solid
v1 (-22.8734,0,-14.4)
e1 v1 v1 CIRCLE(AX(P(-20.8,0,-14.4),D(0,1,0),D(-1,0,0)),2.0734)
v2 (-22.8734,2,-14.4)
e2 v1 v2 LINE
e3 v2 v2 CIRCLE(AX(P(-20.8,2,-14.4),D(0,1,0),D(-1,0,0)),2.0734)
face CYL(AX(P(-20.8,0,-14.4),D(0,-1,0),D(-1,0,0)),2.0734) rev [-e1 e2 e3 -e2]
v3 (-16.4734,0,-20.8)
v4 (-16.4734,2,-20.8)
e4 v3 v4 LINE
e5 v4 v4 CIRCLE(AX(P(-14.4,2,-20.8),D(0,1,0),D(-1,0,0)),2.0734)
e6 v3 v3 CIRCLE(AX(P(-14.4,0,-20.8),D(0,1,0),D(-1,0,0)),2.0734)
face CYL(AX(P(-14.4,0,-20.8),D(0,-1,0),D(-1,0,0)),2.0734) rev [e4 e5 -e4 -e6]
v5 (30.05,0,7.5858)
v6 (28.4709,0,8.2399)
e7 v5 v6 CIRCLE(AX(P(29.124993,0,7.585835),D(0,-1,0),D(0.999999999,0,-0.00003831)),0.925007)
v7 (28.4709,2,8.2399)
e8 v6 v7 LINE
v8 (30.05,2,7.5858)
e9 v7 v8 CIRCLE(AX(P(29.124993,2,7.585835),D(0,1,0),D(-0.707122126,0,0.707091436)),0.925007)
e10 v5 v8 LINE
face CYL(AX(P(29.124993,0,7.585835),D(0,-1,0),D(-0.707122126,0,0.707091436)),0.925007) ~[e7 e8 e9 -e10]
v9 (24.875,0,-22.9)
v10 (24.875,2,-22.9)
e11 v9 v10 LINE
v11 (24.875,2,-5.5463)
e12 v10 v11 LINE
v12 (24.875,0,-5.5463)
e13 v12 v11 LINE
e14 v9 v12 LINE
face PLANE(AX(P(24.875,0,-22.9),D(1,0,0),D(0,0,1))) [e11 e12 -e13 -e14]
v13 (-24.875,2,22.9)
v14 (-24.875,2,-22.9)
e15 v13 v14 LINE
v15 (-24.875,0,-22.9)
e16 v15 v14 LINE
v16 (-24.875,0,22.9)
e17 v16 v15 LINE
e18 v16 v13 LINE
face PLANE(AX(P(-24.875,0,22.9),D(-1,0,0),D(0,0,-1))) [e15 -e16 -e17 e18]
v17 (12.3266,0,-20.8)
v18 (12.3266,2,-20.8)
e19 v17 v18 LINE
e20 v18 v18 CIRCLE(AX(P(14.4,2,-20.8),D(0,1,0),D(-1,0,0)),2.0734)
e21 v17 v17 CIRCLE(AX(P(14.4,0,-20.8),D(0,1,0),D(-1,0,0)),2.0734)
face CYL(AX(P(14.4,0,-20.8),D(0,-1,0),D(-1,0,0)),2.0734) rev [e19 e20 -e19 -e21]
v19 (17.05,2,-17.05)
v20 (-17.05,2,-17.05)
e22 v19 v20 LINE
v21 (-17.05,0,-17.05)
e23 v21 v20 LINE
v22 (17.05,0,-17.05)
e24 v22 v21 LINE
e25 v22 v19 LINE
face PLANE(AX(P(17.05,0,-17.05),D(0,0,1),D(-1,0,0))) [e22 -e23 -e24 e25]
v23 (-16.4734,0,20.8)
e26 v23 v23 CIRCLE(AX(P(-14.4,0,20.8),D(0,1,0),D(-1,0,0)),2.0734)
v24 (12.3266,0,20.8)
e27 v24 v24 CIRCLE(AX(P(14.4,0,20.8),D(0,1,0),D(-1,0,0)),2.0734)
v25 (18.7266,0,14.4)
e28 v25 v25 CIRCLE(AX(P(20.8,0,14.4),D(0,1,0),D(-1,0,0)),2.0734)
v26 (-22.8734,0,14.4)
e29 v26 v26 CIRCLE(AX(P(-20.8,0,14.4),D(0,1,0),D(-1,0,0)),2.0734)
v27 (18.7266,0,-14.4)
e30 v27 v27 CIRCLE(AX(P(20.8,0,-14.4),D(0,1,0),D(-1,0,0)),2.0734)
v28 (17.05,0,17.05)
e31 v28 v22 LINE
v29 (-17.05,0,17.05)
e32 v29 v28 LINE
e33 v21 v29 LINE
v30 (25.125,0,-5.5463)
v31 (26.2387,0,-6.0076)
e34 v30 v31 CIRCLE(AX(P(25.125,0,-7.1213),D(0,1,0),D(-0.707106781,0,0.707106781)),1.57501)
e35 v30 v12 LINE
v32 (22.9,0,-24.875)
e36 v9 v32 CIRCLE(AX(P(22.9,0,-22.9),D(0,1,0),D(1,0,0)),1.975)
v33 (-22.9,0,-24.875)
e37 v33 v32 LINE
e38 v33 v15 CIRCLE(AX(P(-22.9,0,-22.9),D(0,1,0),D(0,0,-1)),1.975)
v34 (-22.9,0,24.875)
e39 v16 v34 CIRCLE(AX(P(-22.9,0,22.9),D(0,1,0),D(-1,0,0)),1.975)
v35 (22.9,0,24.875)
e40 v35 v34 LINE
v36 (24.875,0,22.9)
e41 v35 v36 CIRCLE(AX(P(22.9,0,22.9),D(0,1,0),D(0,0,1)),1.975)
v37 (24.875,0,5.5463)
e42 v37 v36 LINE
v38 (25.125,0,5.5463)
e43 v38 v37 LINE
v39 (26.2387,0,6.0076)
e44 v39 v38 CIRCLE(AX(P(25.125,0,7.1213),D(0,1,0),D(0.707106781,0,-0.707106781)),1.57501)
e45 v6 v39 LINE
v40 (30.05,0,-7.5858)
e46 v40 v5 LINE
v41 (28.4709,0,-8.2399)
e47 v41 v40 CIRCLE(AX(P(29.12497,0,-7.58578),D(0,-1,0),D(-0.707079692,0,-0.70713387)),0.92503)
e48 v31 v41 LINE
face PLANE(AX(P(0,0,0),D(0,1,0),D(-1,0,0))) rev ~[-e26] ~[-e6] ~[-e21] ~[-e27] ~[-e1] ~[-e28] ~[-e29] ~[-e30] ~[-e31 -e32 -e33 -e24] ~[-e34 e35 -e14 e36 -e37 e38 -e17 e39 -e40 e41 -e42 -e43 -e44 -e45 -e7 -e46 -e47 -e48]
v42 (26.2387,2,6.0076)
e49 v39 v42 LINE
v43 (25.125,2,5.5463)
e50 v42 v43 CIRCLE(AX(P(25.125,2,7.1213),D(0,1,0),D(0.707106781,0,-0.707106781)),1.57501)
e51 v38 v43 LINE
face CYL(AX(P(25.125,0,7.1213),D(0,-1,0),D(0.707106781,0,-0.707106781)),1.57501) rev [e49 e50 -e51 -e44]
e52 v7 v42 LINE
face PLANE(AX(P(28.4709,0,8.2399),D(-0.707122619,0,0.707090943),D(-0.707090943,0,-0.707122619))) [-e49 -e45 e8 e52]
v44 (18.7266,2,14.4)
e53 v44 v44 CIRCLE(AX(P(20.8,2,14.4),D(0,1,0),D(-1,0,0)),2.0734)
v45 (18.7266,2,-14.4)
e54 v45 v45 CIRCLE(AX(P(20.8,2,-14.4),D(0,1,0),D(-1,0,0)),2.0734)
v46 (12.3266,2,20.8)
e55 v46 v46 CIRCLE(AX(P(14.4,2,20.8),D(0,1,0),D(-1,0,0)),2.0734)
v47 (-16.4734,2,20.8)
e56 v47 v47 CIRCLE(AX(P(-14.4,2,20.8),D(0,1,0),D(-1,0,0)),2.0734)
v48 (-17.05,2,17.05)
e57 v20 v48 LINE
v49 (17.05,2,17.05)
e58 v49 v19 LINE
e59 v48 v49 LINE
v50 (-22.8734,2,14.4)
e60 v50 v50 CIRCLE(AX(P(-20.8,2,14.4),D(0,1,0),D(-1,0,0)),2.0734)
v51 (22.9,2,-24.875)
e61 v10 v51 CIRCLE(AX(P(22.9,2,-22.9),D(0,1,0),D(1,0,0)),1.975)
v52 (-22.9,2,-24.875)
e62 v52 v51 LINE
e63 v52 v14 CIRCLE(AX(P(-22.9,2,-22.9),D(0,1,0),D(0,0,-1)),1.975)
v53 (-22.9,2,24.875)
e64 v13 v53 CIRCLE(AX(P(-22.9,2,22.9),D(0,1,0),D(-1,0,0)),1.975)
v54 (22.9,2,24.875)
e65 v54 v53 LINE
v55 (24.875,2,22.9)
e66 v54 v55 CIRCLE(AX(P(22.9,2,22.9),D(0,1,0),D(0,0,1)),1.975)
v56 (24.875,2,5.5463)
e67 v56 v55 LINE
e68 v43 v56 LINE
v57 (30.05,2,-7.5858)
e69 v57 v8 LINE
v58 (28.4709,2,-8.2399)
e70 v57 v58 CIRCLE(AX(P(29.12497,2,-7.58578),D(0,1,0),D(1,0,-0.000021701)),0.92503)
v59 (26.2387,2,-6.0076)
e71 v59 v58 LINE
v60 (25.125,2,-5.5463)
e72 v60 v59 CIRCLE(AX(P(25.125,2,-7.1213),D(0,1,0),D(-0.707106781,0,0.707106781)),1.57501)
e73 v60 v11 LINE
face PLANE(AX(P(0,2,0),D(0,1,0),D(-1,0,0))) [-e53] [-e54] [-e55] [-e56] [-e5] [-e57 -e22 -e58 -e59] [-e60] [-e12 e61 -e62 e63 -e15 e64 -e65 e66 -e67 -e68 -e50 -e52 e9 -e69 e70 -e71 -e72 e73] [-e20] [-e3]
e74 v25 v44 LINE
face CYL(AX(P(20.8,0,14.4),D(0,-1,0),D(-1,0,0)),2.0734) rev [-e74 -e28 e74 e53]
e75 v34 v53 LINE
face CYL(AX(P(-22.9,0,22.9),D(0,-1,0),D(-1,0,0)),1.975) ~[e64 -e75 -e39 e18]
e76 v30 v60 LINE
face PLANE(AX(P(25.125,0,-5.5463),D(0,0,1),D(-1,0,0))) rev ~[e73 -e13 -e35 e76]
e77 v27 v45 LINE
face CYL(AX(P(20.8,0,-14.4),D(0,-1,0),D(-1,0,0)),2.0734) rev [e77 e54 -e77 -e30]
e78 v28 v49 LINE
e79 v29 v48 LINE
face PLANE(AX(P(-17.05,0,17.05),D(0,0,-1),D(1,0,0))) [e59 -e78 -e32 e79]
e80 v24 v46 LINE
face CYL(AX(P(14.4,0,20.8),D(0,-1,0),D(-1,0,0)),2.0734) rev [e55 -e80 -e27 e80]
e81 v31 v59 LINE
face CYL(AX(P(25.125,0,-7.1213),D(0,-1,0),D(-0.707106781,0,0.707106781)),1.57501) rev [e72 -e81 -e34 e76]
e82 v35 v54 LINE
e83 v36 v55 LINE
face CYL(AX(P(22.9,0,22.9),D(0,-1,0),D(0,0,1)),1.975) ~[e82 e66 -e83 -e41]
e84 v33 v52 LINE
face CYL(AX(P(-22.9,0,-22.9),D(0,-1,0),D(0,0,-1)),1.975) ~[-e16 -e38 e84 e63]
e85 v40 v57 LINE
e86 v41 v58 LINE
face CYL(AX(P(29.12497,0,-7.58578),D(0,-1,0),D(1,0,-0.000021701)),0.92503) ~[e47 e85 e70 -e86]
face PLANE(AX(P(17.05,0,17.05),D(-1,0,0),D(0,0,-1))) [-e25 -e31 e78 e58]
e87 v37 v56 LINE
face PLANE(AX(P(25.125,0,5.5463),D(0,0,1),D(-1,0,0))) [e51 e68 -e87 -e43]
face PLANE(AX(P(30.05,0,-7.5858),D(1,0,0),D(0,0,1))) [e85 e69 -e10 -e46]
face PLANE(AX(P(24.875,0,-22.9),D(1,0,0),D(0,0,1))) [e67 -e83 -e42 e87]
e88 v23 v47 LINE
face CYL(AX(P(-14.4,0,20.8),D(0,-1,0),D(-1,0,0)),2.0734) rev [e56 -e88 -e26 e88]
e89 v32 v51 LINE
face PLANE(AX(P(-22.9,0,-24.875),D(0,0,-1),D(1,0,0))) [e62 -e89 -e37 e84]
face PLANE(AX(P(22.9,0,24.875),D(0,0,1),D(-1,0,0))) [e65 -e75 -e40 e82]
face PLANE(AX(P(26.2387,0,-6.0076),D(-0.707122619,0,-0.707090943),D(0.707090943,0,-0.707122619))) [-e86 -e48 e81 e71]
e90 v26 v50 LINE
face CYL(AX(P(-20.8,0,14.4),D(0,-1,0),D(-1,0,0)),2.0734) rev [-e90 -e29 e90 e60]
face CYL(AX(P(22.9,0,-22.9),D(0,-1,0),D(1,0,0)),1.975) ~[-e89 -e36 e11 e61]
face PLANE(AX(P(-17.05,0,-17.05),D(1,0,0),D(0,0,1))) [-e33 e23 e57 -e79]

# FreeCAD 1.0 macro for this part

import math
import FreeCAD as App
import Part
import Sketcher

V = App.Vector
Q = App.Units.Quantity


def add_polygon(sketch, points):
    """Adds a closed chain of lines whose ends are joined by coincident constraints."""
    first, n = sketch.GeometryCount, len(points)
    for a, b in zip(points, points[1:] + points[:1]):
        sketch.addGeometry(Part.LineSegment(App.Vector(*a, 0), App.Vector(*b, 0)), False)
    for i in range(n):
        sketch.addConstraint(Sketcher.Constraint("Coincident", first + i, 2, first + (i + 1) % n, 1))

doc = App.newDocument("Part")
params = doc.addObject("Spreadsheet::Sheet", "Params")
for row, (alias, value) in enumerate([
    ("sketch1_width", "45.8 mm"),
    ("sketch1_width2", "34.1 mm"),
    ("pad1_length", "2 mm"),
    ("sketch2_width", "0.25 mm"),
    ("pad2_length", "2 mm"),
], start=1):
    params.set(f"A{row}", alias)
    params.set(f"B{row}", "=" + value)
    params.setAlias(f"B{row}", alias)

body = doc.addObject("PartDesign::Body", "Body")

# Sketch on XZ plane
sketch1 = body.newObject("Sketcher::SketchObject", "Sketch")
sketch1.AttachmentSupport = (doc.getObject("XZ_Plane"), [""])
sketch1.MapMode = "FlatFace"
sketch1.addGeometry(Part.LineSegment(V(-22.9, 24.9, 0), V(22.9, 24.9, 0)), False)  # 0
sketch1.addGeometry(Part.ArcOfCircle(Part.Circle(V(22.9, 22.9, 0), V(0, 0, 1), 2), math.radians(0), math.radians(90)), False)  # 1
sketch1.addGeometry(Part.LineSegment(V(24.9, 22.9, 0), V(24.9, -22.9, 0)), False)  # 2
sketch1.addGeometry(Part.ArcOfCircle(Part.Circle(V(22.9, -22.9, 0), V(0, 0, 1), 2), math.radians(-90), math.radians(0)), False)  # 3
sketch1.addGeometry(Part.LineSegment(V(22.9, -24.9, 0), V(-22.9, -24.9, 0)), False)  # 4
sketch1.addGeometry(Part.ArcOfCircle(Part.Circle(V(-22.9, -22.9, 0), V(0, 0, 1), 2), math.radians(180), math.radians(270)), False)  # 5
sketch1.addGeometry(Part.LineSegment(V(-24.9, -22.9, 0), V(-24.9, 22.9, 0)), False)  # 6
sketch1.addGeometry(Part.ArcOfCircle(Part.Circle(V(-22.9, 22.9, 0), V(0, 0, 1), 2), math.radians(90), math.radians(180)), False)  # 7
sketch1.addGeometry(Part.Circle(V(14.4, -20.8, 0), V(0, 0, 1), 2.1), False)  # 8
sketch1.addGeometry(Part.Circle(V(20.8, -14.4, 0), V(0, 0, 1), 2.1), False)  # 9
add_polygon(sketch1, [(17.1, -17.1), (17.1, 17.1), (-17.1, 17.1), (-17.1, -17.1)])  # lines 10-13
sketch1.addGeometry(Part.Circle(V(-14.4, -20.8, 0), V(0, 0, 1), 2.1), False)  # 14
sketch1.addGeometry(Part.Circle(V(-20.8, -14.4, 0), V(0, 0, 1), 2.1), False)  # 15
sketch1.addGeometry(Part.Circle(V(20.8, 14.4, 0), V(0, 0, 1), 2.1), False)  # 16
sketch1.addGeometry(Part.Circle(V(14.4, 20.8, 0), V(0, 0, 1), 2.1), False)  # 17
sketch1.addGeometry(Part.Circle(V(-20.8, 14.4, 0), V(0, 0, 1), 2.1), False)  # 18
sketch1.addGeometry(Part.Circle(V(-14.4, 20.8, 0), V(0, 0, 1), 2.1), False)  # 19
sketch1.addConstraint([
    Sketcher.Constraint("Tangent", 0, 2, 1, 2),
    Sketcher.Constraint("Tangent", 1, 1, 2, 1),
    Sketcher.Constraint("Tangent", 2, 2, 3, 2),
    Sketcher.Constraint("Tangent", 3, 1, 4, 1),
    Sketcher.Constraint("Tangent", 4, 2, 5, 2),
    Sketcher.Constraint("Tangent", 5, 1, 6, 1),
    Sketcher.Constraint("Tangent", 6, 2, 7, 2),
    Sketcher.Constraint("Tangent", 7, 1, 0, 1),
    Sketcher.Constraint("Horizontal", 0),
    Sketcher.Constraint("Vertical", 2),
    Sketcher.Constraint("Horizontal", 4),
    Sketcher.Constraint("Vertical", 6),
    Sketcher.Constraint("Vertical", 10),
    Sketcher.Constraint("Horizontal", 11),
    Sketcher.Constraint("Vertical", 12),
    Sketcher.Constraint("Horizontal", 13),
    Sketcher.Constraint("Equal", 1, 3),
    Sketcher.Constraint("Equal", 3, 5),
    Sketcher.Constraint("Equal", 5, 7),
    Sketcher.Constraint("Equal", 8, 9),
    Sketcher.Constraint("Equal", 9, 14),
    Sketcher.Constraint("Equal", 14, 15),
    Sketcher.Constraint("Equal", 15, 16),
    Sketcher.Constraint("Equal", 16, 17),
    Sketcher.Constraint("Equal", 17, 18),
    Sketcher.Constraint("Equal", 18, 19),
    Sketcher.Constraint("Symmetric", 1, 3, 5, 3, -1, 1),
    Sketcher.Constraint("Symmetric", 15, 3, 16, 3, -1, 1),
    Sketcher.Constraint("Symmetric", 14, 3, 17, 3, -1, 1),
    Sketcher.Constraint("Symmetric", 9, 3, 18, 3, -1, 1),
    Sketcher.Constraint("Symmetric", 8, 3, 19, 3, -1, 1),
    Sketcher.Constraint("Symmetric", 10, 2, 12, 2, -1, 1),
    Sketcher.Constraint("Symmetric", 8, 3, 14, 3, -2),
    Sketcher.Constraint("Symmetric", 9, 3, 15, 3, -2),
    Sketcher.Constraint("Equal", 4, 2),
    Sketcher.Constraint("Equal", 13, 10),
    Sketcher.Constraint("DistanceX", 0, 1, 0, 2, Q("45.8 mm")),
    Sketcher.Constraint("DistanceX", 11, 2, 11, 1, Q("34.1 mm")),
    Sketcher.Constraint("Radius", 1, Q("1.975 mm")),
    Sketcher.Constraint("Diameter", 8, Q("4.1468 mm")),
    Sketcher.Constraint("DistanceX", -1, 1, 8, 3, Q("14.4 mm")),
    Sketcher.Constraint("DistanceY", 8, 3, -1, 1, Q("20.8 mm")),
    Sketcher.Constraint("DistanceX", -1, 1, 9, 3, Q("20.8 mm")),
    Sketcher.Constraint("DistanceY", 9, 3, -1, 1, Q("14.4 mm")),
])
sketch1.setExpression("Constraints[40]", "Params.sketch1_width")
sketch1.setExpression("Constraints[41]", "Params.sketch1_width2")
pad1 = body.newObject("PartDesign::Pad", "Pad")
pad1.Profile = sketch1
pad1.setExpression("Length", "Params.pad1_length")
pad1.Reversed = True

# Sketch on XZ plane
sketch2 = body.newObject("Sketcher::SketchObject", "Sketch001")
sketch2.AttachmentSupport = (doc.getObject("XZ_Plane"), [""])
sketch2.MapMode = "FlatFace"
sketch2.addGeometry([
    Part.LineSegment(V(25.12, -5.55, 0), V(24.88, -5.55, 0)),  # 0
    Part.LineSegment(V(24.88, -5.55, 0), V(24.88, 5.55, 0)),  # 1
    Part.LineSegment(V(24.88, 5.55, 0), V(25.12, 5.55, 0)),  # 2
    Part.ArcOfCircle(Part.Circle(V(25.12, 7.12, 0), V(0, 0, 1), 1.58), math.radians(-90), math.radians(-45)),  # 3
    Part.LineSegment(V(26.24, 6.01, 0), V(28.47, 8.24, 0)),  # 4
    Part.ArcOfCircle(Part.Circle(V(29.12, 7.59, 0), V(0, 0, 1), 0.93), math.radians(0), math.radians(135)),  # 5
    Part.LineSegment(V(30.05, 7.59, 0), V(30.05, -7.59, 0)),  # 6
    Part.ArcOfCircle(Part.Circle(V(29.12, -7.59, 0), V(0, 0, 1), 0.93), math.radians(-135), math.radians(0)),  # 7
    Part.LineSegment(V(28.47, -8.24, 0), V(26.24, -6.01, 0)),  # 8
    Part.ArcOfCircle(Part.Circle(V(25.12, -7.12, 0), V(0, 0, 1), 1.58), math.radians(45), math.radians(90)),  # 9
], False)
sketch2.addConstraint([
    Sketcher.Constraint("Coincident", 0, 2, 1, 1),
    Sketcher.Constraint("Coincident", 1, 2, 2, 1),
    Sketcher.Constraint("Tangent", 2, 2, 3, 1),
    Sketcher.Constraint("Tangent", 3, 2, 4, 1),
    Sketcher.Constraint("Tangent", 4, 2, 5, 2),
    Sketcher.Constraint("Tangent", 5, 1, 6, 1),
    Sketcher.Constraint("Tangent", 6, 2, 7, 2),
    Sketcher.Constraint("Tangent", 7, 1, 8, 1),
    Sketcher.Constraint("Tangent", 8, 2, 9, 1),
    Sketcher.Constraint("Tangent", 9, 2, 0, 1),
    Sketcher.Constraint("Horizontal", 0),
    Sketcher.Constraint("Vertical", 1),
    Sketcher.Constraint("Horizontal", 2),
    Sketcher.Constraint("Vertical", 6),
    Sketcher.Constraint("Equal", 5, 7),
    Sketcher.Constraint("Equal", 3, 9),
    Sketcher.Constraint("Symmetric", 3, 3, 9, 3, -1),
    Sketcher.Constraint("Perpendicular", 4, 8),
    Sketcher.Constraint("Vertical", 4, 2, 7, 1),
    Sketcher.Constraint("DistanceX", 0, 2, 0, 1, Q("0.25 mm")),
    Sketcher.Constraint("DistanceY", 6, 2, 6, 1, Q("15.1716 mm")),
    Sketcher.Constraint("Radius", 3, Q("1.575 mm")),
    Sketcher.Constraint("Radius", 5, Q("0.925 mm")),
    Sketcher.Constraint("DistanceX", 3, 3, 5, 3, Q("4 mm")),
    Sketcher.Constraint("DistanceX", -1, 1, 5, 1, Q("30.05 mm")),
])
sketch2.setExpression("Constraints[19]", "Params.sketch2_width")
pad2 = body.newObject("PartDesign::Pad", "Pad001")
pad2.Profile = sketch2
pad2.setExpression("Length", "Params.pad2_length")
pad2.Reversed = True

doc.recompute()
